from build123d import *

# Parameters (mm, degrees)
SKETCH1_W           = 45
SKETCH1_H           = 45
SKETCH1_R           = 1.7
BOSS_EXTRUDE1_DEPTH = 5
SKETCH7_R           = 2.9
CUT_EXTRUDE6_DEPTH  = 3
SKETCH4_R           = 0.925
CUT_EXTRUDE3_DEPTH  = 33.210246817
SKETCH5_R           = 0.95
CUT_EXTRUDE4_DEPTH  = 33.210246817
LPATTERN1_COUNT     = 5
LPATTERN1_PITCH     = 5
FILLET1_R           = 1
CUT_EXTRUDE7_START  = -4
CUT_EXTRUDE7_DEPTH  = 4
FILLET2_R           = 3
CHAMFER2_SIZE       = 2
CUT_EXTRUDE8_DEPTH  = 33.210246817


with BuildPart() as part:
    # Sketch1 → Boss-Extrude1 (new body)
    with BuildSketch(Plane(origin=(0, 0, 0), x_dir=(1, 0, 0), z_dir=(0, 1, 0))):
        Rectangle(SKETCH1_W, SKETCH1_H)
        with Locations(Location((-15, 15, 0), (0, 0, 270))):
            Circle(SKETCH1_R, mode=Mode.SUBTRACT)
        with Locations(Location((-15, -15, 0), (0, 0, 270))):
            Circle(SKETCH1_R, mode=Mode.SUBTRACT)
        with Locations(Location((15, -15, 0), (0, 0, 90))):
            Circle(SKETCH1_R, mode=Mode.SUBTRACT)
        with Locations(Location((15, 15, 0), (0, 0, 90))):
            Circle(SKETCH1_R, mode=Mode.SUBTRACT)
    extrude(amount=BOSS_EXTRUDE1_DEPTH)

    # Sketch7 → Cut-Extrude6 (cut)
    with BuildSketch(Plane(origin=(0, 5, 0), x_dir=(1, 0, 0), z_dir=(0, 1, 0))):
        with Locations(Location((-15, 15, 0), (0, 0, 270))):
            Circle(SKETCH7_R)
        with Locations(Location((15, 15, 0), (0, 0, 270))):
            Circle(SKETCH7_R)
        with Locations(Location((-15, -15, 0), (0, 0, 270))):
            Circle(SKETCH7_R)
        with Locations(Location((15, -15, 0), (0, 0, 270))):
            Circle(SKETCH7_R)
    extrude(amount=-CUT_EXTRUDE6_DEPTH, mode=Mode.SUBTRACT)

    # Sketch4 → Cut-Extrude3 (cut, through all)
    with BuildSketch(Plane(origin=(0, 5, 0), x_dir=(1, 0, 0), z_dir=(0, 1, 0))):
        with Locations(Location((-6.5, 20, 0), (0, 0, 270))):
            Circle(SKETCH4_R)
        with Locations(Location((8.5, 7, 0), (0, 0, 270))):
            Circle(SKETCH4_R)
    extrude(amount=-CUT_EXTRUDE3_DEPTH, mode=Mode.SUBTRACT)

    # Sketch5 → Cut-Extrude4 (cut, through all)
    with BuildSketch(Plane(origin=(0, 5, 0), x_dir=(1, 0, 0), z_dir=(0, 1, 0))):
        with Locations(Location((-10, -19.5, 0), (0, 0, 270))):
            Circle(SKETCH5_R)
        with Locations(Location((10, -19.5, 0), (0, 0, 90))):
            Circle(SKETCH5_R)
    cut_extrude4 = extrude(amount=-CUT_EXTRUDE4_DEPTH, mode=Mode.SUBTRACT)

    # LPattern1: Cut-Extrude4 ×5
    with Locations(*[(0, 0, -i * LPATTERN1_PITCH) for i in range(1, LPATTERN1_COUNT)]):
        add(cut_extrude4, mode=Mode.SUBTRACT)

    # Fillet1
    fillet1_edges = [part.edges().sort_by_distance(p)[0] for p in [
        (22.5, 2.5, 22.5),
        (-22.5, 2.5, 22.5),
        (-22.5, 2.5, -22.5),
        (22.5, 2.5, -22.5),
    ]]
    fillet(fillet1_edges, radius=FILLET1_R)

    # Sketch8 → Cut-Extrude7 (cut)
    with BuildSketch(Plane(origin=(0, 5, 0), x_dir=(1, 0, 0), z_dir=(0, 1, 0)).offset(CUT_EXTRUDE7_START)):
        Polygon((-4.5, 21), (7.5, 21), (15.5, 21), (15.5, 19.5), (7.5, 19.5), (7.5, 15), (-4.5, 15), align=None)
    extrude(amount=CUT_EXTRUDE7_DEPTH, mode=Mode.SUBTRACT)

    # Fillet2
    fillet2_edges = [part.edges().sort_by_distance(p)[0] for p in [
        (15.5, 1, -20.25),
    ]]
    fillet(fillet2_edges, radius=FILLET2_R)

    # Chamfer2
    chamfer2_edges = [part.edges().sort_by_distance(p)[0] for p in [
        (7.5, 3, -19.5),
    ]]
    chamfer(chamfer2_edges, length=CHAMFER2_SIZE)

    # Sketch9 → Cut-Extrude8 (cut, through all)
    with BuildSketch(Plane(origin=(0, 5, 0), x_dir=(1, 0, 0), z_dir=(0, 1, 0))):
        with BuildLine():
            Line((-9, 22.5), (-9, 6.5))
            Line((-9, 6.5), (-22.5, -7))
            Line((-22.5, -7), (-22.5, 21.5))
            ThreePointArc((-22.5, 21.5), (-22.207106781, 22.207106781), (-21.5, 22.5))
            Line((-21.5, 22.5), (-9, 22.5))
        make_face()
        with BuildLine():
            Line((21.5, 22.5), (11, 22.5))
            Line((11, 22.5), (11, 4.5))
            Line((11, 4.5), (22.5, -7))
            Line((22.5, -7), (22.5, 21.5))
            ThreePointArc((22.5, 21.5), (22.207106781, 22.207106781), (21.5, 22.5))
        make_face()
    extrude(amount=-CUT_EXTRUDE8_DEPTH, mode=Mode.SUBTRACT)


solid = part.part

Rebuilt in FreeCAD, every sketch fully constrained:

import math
import FreeCAD as App
import Part
import Sketcher

V = App.Vector
Q = App.Units.Quantity


def edges_at(feature, points):
    """Names of the edges that pass closest to the given points."""
    edges = feature.Shape.Edges
    near = lambda p: min(range(len(edges)), key=lambda i: edges[i].distToShape(Part.Vertex(*p))[0])
    return sorted({f"Edge{near(p) + 1}" for p in points})

doc = App.newDocument("Part")
body = doc.addObject("PartDesign::Body", "Body")

# Sketch on XZ plane
sketch1 = body.newObject("Sketcher::SketchObject", "Sketch")
sketch1.AttachmentSupport = (doc.getObject("XZ_Plane"), [""])
sketch1.MapMode = "FlatFace"
sketch1.addGeometry([
    Part.LineSegment(V(-22.5, -22.5, 0), V(-22.5, 22.5, 0)),  # 0
    Part.LineSegment(V(-22.5, 22.5, 0), V(22.5, 22.5, 0)),  # 1
    Part.LineSegment(V(22.5, 22.5, 0), V(22.5, -22.5, 0)),  # 2
    Part.LineSegment(V(22.5, -22.5, 0), V(-22.5, -22.5, 0)),  # 3
    Part.Circle(V(-15, 15, 0), V(0, 0, 1), 1.7),  # 4
    Part.Circle(V(15, 15, 0), V(0, 0, 1), 1.7),  # 5
    Part.Circle(V(-15, -15, 0), V(0, 0, 1), 1.7),  # 6
    Part.Circle(V(15, -15, 0), V(0, 0, 1), 1.7),  # 7
], False)
sketch1.addConstraint([
    Sketcher.Constraint("Coincident", 0, 2, 1, 1),
    Sketcher.Constraint("Coincident", 1, 2, 2, 1),
    Sketcher.Constraint("Coincident", 2, 2, 3, 1),
    Sketcher.Constraint("Coincident", 3, 2, 0, 1),
    Sketcher.Constraint("Vertical", 0),
    Sketcher.Constraint("Horizontal", 1),
    Sketcher.Constraint("Vertical", 2),
    Sketcher.Constraint("Horizontal", 3),
    Sketcher.Constraint("Equal", 4, 5),
    Sketcher.Constraint("Equal", 5, 6),
    Sketcher.Constraint("Equal", 6, 7),
    Sketcher.Constraint("Symmetric", 5, 3, 6, 3, -1, 1),
    Sketcher.Constraint("Symmetric", 4, 3, 7, 3, -1, 1),
    Sketcher.Constraint("Symmetric", 0, 2, 2, 2, -1, 1),
    Sketcher.Constraint("Symmetric", 4, 3, 5, 3, -2),
    Sketcher.Constraint("Equal", 3, 0),
    Sketcher.Constraint("Diameter", 4, 3.4),
    Sketcher.Constraint("DistanceX", 1, 1, 1, 2, 45.0),
    Sketcher.Constraint("DistanceX", 4, 3, -1, 1, 15.0),
    Sketcher.Constraint("DistanceY", -1, 1, 4, 3, 15.0),
])
pad1 = body.newObject("PartDesign::Pad", "Pad")
pad1.Profile = sketch1
pad1.Length = 5
pad1.Reversed = True

# Sketch on XZ plane
sketch2 = body.newObject("Sketcher::SketchObject", "Sketch001")
sketch2.AttachmentSupport = (doc.getObject("XZ_Plane"), [""])
sketch2.MapMode = "FlatFace"
sketch2.AttachmentOffset = App.Placement(V(0, 0, -5), App.Rotation())
sketch2.addGeometry([
    Part.Circle(V(-15, -15, 0), V(0, 0, 1), 2.9),
    Part.Circle(V(15, -15, 0), V(0, 0, 1), 2.9),
    Part.Circle(V(-15, 15, 0), V(0, 0, 1), 2.9),
    Part.Circle(V(15, 15, 0), V(0, 0, 1), 2.9),
], False)
sketch2.addConstraint([
    Sketcher.Constraint("Equal", 0, 1),
    Sketcher.Constraint("Equal", 1, 2),
    Sketcher.Constraint("Equal", 2, 3),
    Sketcher.Constraint("Symmetric", 1, 3, 2, 3, -1, 1),
    Sketcher.Constraint("Symmetric", 0, 3, 3, 3, -1, 1),
    Sketcher.Constraint("Symmetric", 0, 3, 1, 3, -2),
    Sketcher.Constraint("Diameter", 0, 5.8),
    Sketcher.Constraint("DistanceX", 0, 3, -1, 1, 15.0),
    Sketcher.Constraint("DistanceY", 0, 3, -1, 1, 15.0),
])
pocket1 = body.newObject("PartDesign::Pocket", "Pocket")
pocket1.Profile = sketch2
pocket1.Length = 3
pocket1.Reversed = True

# Sketch on XZ plane
sketch3 = body.newObject("Sketcher::SketchObject", "Sketch002")
sketch3.AttachmentSupport = (doc.getObject("XZ_Plane"), [""])
sketch3.MapMode = "FlatFace"
sketch3.AttachmentOffset = App.Placement(V(0, 0, -5), App.Rotation())
sketch3.addGeometry([
    Part.Circle(V(-6.5, -20, 0), V(0, 0, 1), 0.9),
    Part.Circle(V(8.5, -7, 0), V(0, 0, 1), 0.9),
], False)
sketch3.addConstraint([
    Sketcher.Constraint("Equal", 0, 1),
    Sketcher.Constraint("Diameter", 0, 1.85),
    Sketcher.Constraint("DistanceY", 0, 3, -1, 1, 20.0),
    Sketcher.Constraint("DistanceY", 1, 3, -1, 1, 7.0),
    Sketcher.Constraint("DistanceX", 0, 3, 1, 3, 15.0),
    Sketcher.Constraint("DistanceX", 0, 3, -1, 1, 6.5),
])
pocket2 = body.newObject("PartDesign::Pocket", "Pocket001")
pocket2.Profile = sketch3
pocket2.Type = "ThroughAll"
pocket2.Reversed = True

# Sketch on XZ plane
sketch4 = body.newObject("Sketcher::SketchObject", "Sketch003")
sketch4.AttachmentSupport = (doc.getObject("XZ_Plane"), [""])
sketch4.MapMode = "FlatFace"
sketch4.AttachmentOffset = App.Placement(V(0, 0, -5), App.Rotation())
sketch4.addGeometry([
    Part.Circle(V(-10, 19.5, 0), V(0, 0, 1), 0.9),
    Part.Circle(V(10, 19.5, 0), V(0, 0, 1), 0.9),
], False)
sketch4.addConstraint([
    Sketcher.Constraint("Equal", 0, 1),
    Sketcher.Constraint("Symmetric", 0, 3, 1, 3, -2),
    Sketcher.Constraint("Diameter", 0, 1.9),
    Sketcher.Constraint("DistanceX", 0, 3, -1, 1, 10.0),
    Sketcher.Constraint("DistanceY", -1, 1, 0, 3, 19.5),
])
pocket3 = body.newObject("PartDesign::Pocket", "Pocket002")
pocket3.Profile = sketch4
pocket3.Type = "ThroughAll"
pocket3.Reversed = True
doc.recompute()

linearpattern = body.newObject("PartDesign::LinearPattern", "LinearPattern")
linearpattern.Originals = [pocket3]
linearpattern.Direction = (doc.getObject("Z_Axis"), [""])
linearpattern.Mode = "offset"
linearpattern.Offset = 5
linearpattern.Occurrences = 5
linearpattern.Reversed = True
body.Tip = linearpattern
doc.recompute()

fillet = body.newObject("PartDesign::Fillet", "Fillet")
fillet.Base = (linearpattern, edges_at(linearpattern, [
    (22.5, 2.5, 22.5),
    (-22.5, 2.5, 22.5),
    (-22.5, 2.5, -22.5),
    (22.5, 2.5, -22.5),
]))
fillet.Radius = 1

# Sketch on XZ plane
sketch5 = body.newObject("Sketcher::SketchObject", "Sketch004")
sketch5.AttachmentSupport = (doc.getObject("XZ_Plane"), [""])
sketch5.MapMode = "FlatFace"
sketch5.AttachmentOffset = App.Placement(V(0, 0, -1), App.Rotation())
sketch5.addGeometry([
    Part.LineSegment(V(15.5, -21, 0), V(-4.5, -21, 0)),  # 0
    Part.LineSegment(V(-4.5, -21, 0), V(-4.5, -15, 0)),  # 1
    Part.LineSegment(V(-4.5, -15, 0), V(7.5, -15, 0)),  # 2
    Part.LineSegment(V(7.5, -15, 0), V(7.5, -19.5, 0)),  # 3
    Part.LineSegment(V(7.5, -19.5, 0), V(15.5, -19.5, 0)),  # 4
    Part.LineSegment(V(15.5, -19.5, 0), V(15.5, -21, 0)),  # 5
], False)
sketch5.addConstraint([
    Sketcher.Constraint("Coincident", 0, 2, 1, 1),
    Sketcher.Constraint("Coincident", 1, 2, 2, 1),
    Sketcher.Constraint("Coincident", 2, 2, 3, 1),
    Sketcher.Constraint("Coincident", 3, 2, 4, 1),
    Sketcher.Constraint("Coincident", 4, 2, 5, 1),
    Sketcher.Constraint("Coincident", 5, 2, 0, 1),
    Sketcher.Constraint("Horizontal", 0),
    Sketcher.Constraint("Vertical", 1),
    Sketcher.Constraint("Horizontal", 2),
    Sketcher.Constraint("Vertical", 3),
    Sketcher.Constraint("Horizontal", 4),
    Sketcher.Constraint("Vertical", 5),
    Sketcher.Constraint("DistanceX", 0, 2, 0, 1, 20.0),
    Sketcher.Constraint("DistanceX", 2, 1, 2, 2, 12.0),
    Sketcher.Constraint("DistanceY", 1, 1, 1, 2, 6.0),
    Sketcher.Constraint("DistanceY", 3, 2, 3, 1, 4.5),
    Sketcher.Constraint("DistanceY", 0, 2, -1, 1, 21.0),
    Sketcher.Constraint("DistanceX", 0, 2, -1, 1, 4.5),
])
pocket4 = body.newObject("PartDesign::Pocket", "Pocket003")
pocket4.Profile = sketch5
pocket4.Length = 4
doc.recompute()

fillet2 = body.newObject("PartDesign::Fillet", "Fillet001")
fillet2.Base = (pocket4, edges_at(pocket4, [(15.5, 1, -20.25)]))
fillet2.Radius = 3
doc.recompute()

chamfer = body.newObject("PartDesign::Chamfer", "Chamfer")
chamfer.Base = (fillet2, edges_at(fillet2, [(7.5, 3, -19.5)]))
chamfer.Size = 2

# Sketch on XZ plane
sketch6 = body.newObject("Sketcher::SketchObject", "Sketch005")
sketch6.AttachmentSupport = (doc.getObject("XZ_Plane"), [""])
sketch6.MapMode = "FlatFace"
sketch6.AttachmentOffset = App.Placement(V(0, 0, -5), App.Rotation())
sketch6.addGeometry([
    Part.LineSegment(V(-9, -6.5, 0), V(-9, -22.5, 0)),  # 0
    Part.LineSegment(V(-9, -22.5, 0), V(-21.5, -22.5, 0)),  # 1
    Part.ArcOfCircle(Part.Circle(V(-21.5, -21.5, 0), V(0, 0, 1), 1), math.radians(-180), math.radians(-90)),  # 2
    Part.LineSegment(V(-22.5, -21.5, 0), V(-22.5, 7, 0)),  # 3
    Part.LineSegment(V(-22.5, 7, 0), V(-9, -6.5, 0)),  # 4
    Part.LineSegment(V(21.5, -22.5, 0), V(11, -22.5, 0)),  # 5
    Part.LineSegment(V(11, -22.5, 0), V(11, -4.5, 0)),  # 6
    Part.LineSegment(V(11, -4.5, 0), V(22.5, 7, 0)),  # 7
    Part.LineSegment(V(22.5, 7, 0), V(22.5, -21.5, 0)),  # 8
    Part.ArcOfCircle(Part.Circle(V(21.5, -21.5, 0), V(0, 0, 1), 1), math.radians(-90), math.radians(0)),  # 9
], False)
sketch6.addConstraint([
    Sketcher.Constraint("Coincident", 0, 2, 1, 1),
    Sketcher.Constraint("Tangent", 1, 2, 2, 2),
    Sketcher.Constraint("Tangent", 2, 1, 3, 1),
    Sketcher.Constraint("Coincident", 3, 2, 4, 1),
    Sketcher.Constraint("Coincident", 4, 2, 0, 1),
    Sketcher.Constraint("Coincident", 5, 2, 6, 1),
    Sketcher.Constraint("Coincident", 6, 2, 7, 1),
    Sketcher.Constraint("Coincident", 7, 2, 8, 1),
    Sketcher.Constraint("Tangent", 8, 2, 9, 2),
    Sketcher.Constraint("Tangent", 9, 1, 5, 1),
    Sketcher.Constraint("Vertical", 0),
    Sketcher.Constraint("Horizontal", 1),
    Sketcher.Constraint("Vertical", 3),
    Sketcher.Constraint("Horizontal", 5),
    Sketcher.Constraint("Vertical", 6),
    Sketcher.Constraint("Vertical", 8),
    Sketcher.Constraint("Equal", 2, 9),
    Sketcher.Constraint("Symmetric", 2, 3, 9, 3, -2),
    Sketcher.Constraint("Perpendicular", 4, 7),
    Sketcher.Constraint("Horizontal", 3, 2, 7, 2),
    Sketcher.Constraint("Radius", 2, 1.0),
    Sketcher.Constraint("DistanceY", 0, 2, 0, 1, 16.0),
    Sketcher.Constraint("DistanceY", 6, 1, 6, 2, 18.0),
    Sketcher.Constraint("Angle", 4, Q("-45 deg")),
    Sketcher.Constraint("DistanceX", 1, 2, 1, 1, 12.5),
    Sketcher.Constraint("DistanceX", 0, 2, -1, 1, 9.0),
    Sketcher.Constraint("DistanceY", -1, 1, 3, 2, 7.0),
])
pocket5 = body.newObject("PartDesign::Pocket", "Pocket004")
pocket5.Profile = sketch6
pocket5.Type = "ThroughAll"
pocket5.Reversed = True

doc.recompute()
